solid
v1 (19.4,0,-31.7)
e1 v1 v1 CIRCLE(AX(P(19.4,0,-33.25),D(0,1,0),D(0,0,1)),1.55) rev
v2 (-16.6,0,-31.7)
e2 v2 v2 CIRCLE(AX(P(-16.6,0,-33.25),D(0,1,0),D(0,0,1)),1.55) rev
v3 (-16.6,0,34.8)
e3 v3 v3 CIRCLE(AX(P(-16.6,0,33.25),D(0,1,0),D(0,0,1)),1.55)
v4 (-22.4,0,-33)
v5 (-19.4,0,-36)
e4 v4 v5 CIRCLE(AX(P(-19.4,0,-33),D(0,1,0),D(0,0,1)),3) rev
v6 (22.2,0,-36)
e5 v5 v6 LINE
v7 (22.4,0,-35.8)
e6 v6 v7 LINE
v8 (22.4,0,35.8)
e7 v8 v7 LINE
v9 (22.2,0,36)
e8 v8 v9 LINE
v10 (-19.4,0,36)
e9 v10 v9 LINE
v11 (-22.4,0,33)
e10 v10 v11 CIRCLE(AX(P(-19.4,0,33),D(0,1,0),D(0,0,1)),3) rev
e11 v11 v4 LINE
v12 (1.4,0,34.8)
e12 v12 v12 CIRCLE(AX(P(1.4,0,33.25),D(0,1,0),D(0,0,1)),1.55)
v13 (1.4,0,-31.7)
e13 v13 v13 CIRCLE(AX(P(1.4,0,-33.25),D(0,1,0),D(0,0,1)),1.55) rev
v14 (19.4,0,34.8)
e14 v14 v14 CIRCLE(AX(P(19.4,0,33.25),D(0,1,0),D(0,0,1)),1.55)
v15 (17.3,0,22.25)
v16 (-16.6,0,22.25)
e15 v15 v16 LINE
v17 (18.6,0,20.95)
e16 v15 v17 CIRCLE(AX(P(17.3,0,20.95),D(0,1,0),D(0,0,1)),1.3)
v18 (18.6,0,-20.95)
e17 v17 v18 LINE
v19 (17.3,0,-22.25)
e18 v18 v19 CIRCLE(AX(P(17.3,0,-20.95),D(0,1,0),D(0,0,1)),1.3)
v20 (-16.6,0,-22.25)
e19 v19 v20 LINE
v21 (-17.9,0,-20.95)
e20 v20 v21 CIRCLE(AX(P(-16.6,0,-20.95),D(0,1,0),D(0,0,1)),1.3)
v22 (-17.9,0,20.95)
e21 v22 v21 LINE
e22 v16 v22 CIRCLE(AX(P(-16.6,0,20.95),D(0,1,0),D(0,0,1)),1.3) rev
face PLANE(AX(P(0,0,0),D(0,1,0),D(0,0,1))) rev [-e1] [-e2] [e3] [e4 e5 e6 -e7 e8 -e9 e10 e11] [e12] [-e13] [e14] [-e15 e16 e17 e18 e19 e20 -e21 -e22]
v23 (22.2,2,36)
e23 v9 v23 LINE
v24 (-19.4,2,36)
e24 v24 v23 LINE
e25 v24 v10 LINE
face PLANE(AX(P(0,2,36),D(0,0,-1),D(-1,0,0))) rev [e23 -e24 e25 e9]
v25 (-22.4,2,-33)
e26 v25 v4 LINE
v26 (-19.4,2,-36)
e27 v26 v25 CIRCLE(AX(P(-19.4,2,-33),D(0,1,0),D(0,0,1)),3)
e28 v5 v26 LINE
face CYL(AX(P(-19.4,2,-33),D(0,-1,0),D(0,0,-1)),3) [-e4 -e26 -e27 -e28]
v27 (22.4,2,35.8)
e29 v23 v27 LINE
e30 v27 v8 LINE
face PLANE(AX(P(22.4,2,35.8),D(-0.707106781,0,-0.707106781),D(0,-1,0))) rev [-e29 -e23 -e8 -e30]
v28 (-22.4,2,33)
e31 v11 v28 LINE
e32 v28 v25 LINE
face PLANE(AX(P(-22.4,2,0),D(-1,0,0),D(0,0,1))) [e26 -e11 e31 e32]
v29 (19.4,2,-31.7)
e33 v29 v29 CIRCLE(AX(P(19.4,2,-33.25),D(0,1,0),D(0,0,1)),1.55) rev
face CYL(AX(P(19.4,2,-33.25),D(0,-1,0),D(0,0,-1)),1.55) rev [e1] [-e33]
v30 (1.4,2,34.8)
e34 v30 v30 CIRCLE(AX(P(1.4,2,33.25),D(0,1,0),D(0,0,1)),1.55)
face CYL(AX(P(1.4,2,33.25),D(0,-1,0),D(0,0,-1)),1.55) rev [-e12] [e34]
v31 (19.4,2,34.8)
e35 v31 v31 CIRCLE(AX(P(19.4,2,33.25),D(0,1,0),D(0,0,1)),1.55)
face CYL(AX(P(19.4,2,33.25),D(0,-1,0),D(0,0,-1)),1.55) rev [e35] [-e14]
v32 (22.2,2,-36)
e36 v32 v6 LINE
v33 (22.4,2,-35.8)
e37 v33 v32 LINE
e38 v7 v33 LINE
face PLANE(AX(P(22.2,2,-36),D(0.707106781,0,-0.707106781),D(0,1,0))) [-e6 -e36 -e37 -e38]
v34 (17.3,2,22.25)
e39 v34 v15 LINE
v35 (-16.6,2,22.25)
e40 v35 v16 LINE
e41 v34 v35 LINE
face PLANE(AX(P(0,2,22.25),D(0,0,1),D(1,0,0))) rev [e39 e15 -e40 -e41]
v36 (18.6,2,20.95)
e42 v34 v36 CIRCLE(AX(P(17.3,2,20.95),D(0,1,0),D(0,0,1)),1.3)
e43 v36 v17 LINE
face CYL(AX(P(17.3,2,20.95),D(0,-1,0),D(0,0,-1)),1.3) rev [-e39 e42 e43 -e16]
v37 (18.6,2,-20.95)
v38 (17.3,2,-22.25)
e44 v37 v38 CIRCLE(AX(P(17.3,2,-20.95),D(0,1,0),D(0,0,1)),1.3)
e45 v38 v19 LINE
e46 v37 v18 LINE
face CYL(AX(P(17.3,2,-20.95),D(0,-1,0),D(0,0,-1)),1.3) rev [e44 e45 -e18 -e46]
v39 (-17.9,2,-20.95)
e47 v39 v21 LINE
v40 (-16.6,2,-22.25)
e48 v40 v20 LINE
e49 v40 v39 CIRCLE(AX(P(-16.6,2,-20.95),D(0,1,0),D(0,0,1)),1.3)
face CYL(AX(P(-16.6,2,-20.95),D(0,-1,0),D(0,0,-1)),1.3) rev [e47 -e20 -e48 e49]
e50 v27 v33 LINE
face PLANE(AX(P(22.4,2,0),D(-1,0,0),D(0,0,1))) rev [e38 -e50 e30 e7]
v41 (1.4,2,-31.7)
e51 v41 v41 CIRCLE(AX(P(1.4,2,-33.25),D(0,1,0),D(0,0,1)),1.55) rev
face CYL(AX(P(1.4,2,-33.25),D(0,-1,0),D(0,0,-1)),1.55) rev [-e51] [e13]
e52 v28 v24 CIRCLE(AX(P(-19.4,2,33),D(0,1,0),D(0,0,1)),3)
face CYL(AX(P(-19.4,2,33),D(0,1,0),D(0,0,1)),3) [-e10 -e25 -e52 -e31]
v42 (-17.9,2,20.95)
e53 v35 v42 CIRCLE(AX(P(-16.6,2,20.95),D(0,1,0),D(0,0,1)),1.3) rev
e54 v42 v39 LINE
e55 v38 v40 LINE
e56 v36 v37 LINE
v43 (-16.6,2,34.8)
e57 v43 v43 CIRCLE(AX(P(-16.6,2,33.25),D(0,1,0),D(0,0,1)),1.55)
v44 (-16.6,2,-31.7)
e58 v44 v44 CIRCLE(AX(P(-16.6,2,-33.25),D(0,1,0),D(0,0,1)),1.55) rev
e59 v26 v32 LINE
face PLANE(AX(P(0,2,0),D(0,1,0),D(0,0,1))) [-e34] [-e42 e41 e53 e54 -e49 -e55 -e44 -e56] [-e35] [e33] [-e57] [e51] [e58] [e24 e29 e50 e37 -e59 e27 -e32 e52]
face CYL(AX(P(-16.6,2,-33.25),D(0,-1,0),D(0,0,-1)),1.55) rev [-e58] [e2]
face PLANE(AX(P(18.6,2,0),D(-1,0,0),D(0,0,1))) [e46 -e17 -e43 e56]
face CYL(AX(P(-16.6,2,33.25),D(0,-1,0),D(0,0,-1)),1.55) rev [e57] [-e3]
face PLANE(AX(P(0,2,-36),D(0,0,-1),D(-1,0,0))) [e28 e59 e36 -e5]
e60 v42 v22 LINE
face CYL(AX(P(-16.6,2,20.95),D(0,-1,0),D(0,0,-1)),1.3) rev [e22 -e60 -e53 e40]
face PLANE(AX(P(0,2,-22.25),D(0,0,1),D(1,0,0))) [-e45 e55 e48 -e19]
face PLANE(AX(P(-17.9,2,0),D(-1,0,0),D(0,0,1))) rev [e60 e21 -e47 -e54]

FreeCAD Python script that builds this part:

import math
import FreeCAD as App
import Part
import Sketcher
from FreeCAD import Vector


def edges_at(feature, points):
    """Names of the edges that pass closest to the given points."""
    edges = feature.Shape.Edges
    near = lambda p: min(range(len(edges)), key=lambda i: edges[i].distToShape(Part.Vertex(*p))[0])
    return sorted({f"Edge{near(p) + 1}" for p in points})


def add_polygon(sketch, points):
    """Adds a closed chain of lines whose ends are joined by coincident constraints."""
    first, n = sketch.GeometryCount, len(points)
    for a, b in zip(points, points[1:] + points[:1]):
        sketch.addGeometry(Part.LineSegment(App.Vector(*a, 0), App.Vector(*b, 0)), False)
    for i in range(n):
        sketch.addConstraint(Sketcher.Constraint("Coincident", first + i, 2, first + (i + 1) % n, 1))

doc = App.newDocument("Part")
params = doc.addObject("Spreadsheet::Sheet", "Params")
for row, (alias, value) in enumerate([
    ("sketch1_diameter", "3.1 mm"),
    ("sketch1_radius", "1.3 mm"),
    ("sketch1_height", "72 mm"),
    ("sketch1_width", "44.8 mm"),
    ("sketch1_width2", "33.9 mm"),
    ("pad1_length", "2 mm"),
    ("chamfer_size", "0.2 mm"),
    ("fillet_radius", "3 mm"),
], start=1):
    params.set(f"A{row}", alias)
    params.set(f"B{row}", "=" + value)
    params.setAlias(f"B{row}", alias)

body = doc.addObject("PartDesign::Body", "Body")

sketch1 = doc.addObject("Sketcher::SketchObject", "Sketch")
body.addObject(sketch1)
sketch1.AttachmentSupport = (doc.XZ_Plane, [""])
sketch1.MapMode = "FlatFace"
add_polygon(sketch1, [(-22.4, -36), (-22.4, 36), (22.4, 36), (22.4, -36)])
sketch1.addGeometry(Part.Circle(Vector(-16.6, 33.2, 0), Vector(0, 0, 1), 1.6), False)
sketch1.addGeometry(Part.Circle(Vector(1.4, 33.2, 0), Vector(0, 0, 1), 1.6), False)
sketch1.addGeometry(Part.Circle(Vector(19.4, 33.2, 0), Vector(0, 0, 1), 1.6), False)
sketch1.addGeometry(Part.ArcOfCircle(Part.Circle(Vector(17.3, 21, 0), Vector(0, 0, 1), 1.3), math.radians(0), math.radians(90)), False)
sketch1.addGeometry(Part.LineSegment(Vector(17.3, 22.2, 0), Vector(-16.6, 22.2, 0)), False)
sketch1.addGeometry(Part.ArcOfCircle(Part.Circle(Vector(-16.6, 21, 0), Vector(0, 0, 1), 1.3), math.radians(90), math.radians(180)), False)
sketch1.addGeometry(Part.LineSegment(Vector(-17.9, 20.9, 0), Vector(-17.9, -20.9, 0)), False)
sketch1.addGeometry(Part.ArcOfCircle(Part.Circle(Vector(-16.6, -21, 0), Vector(0, 0, 1), 1.3), math.radians(180), math.radians(270)), False)
sketch1.addGeometry(Part.LineSegment(Vector(-16.6, -22.2, 0), Vector(17.3, -22.2, 0)), False)
sketch1.addGeometry(Part.ArcOfCircle(Part.Circle(Vector(17.3, -21, 0), Vector(0, 0, 1), 1.3), math.radians(-90), math.radians(0)), False)
sketch1.addGeometry(Part.LineSegment(Vector(18.6, -20.9, 0), Vector(18.6, 20.9, 0)), False)
sketch1.addGeometry(Part.Circle(Vector(-16.6, -33.2, 0), Vector(0, 0, 1), 1.6), False)
sketch1.addGeometry(Part.Circle(Vector(1.4, -33.2, 0), Vector(0, 0, 1), 1.6), False)
sketch1.addGeometry(Part.Circle(Vector(19.4, -33.2, 0), Vector(0, 0, 1), 1.6), False)
sketch1.addConstraint(Sketcher.Constraint("Tangent", 7, 2, 8, 1))
sketch1.addConstraint(Sketcher.Constraint("Tangent", 8, 2, 9, 1))
sketch1.addConstraint(Sketcher.Constraint("Tangent", 9, 2, 10, 1))
sketch1.addConstraint(Sketcher.Constraint("Tangent", 10, 2, 11, 1))
sketch1.addConstraint(Sketcher.Constraint("Tangent", 11, 2, 12, 1))
sketch1.addConstraint(Sketcher.Constraint("Tangent", 12, 2, 13, 1))
sketch1.addConstraint(Sketcher.Constraint("Tangent", 13, 2, 14, 1))
sketch1.addConstraint(Sketcher.Constraint("Tangent", 14, 2, 7, 1))
sketch1.addConstraint(Sketcher.Constraint("Vertical", 0))
sketch1.addConstraint(Sketcher.Constraint("Horizontal", 1))
sketch1.addConstraint(Sketcher.Constraint("Vertical", 2))
sketch1.addConstraint(Sketcher.Constraint("Horizontal", 3))
sketch1.addConstraint(Sketcher.Constraint("Horizontal", 8))
sketch1.addConstraint(Sketcher.Constraint("Vertical", 10))
sketch1.addConstraint(Sketcher.Constraint("Horizontal", 12))
sketch1.addConstraint(Sketcher.Constraint("Vertical", 14))
sketch1.addConstraint(Sketcher.Constraint("Equal", 4, 5))
sketch1.addConstraint(Sketcher.Constraint("Equal", 5, 6))
sketch1.addConstraint(Sketcher.Constraint("Equal", 7, 9))
sketch1.addConstraint(Sketcher.Constraint("Equal", 9, 11))
sketch1.addConstraint(Sketcher.Constraint("Equal", 11, 13))
sketch1.addConstraint(Sketcher.Constraint("Equal", 6, 15))
sketch1.addConstraint(Sketcher.Constraint("Equal", 15, 16))
sketch1.addConstraint(Sketcher.Constraint("Equal", 16, 17))
sketch1.addConstraint(Sketcher.Constraint("Symmetric", 0, 2, 2, 2, -1, 1))
sketch1.addConstraint(Sketcher.Constraint("Symmetric", 4, 3, 15, 3, -1))
sketch1.addConstraint(Sketcher.Constraint("Symmetric", 5, 3, 16, 3, -1))
sketch1.addConstraint(Sketcher.Constraint("Symmetric", 6, 3, 17, 3, -1))
sketch1.addConstraint(Sketcher.Constraint("Horizontal", 4, 3, 5, 3))
sketch1.addConstraint(Sketcher.Constraint("Horizontal", 5, 3, 6, 3))
sketch1.addConstraint(Sketcher.Constraint("Vertical", 4, 3, 9, 3))
sketch1.addConstraint(Sketcher.Constraint("Diameter", 4, 3.1))
sketch1.addConstraint(Sketcher.Constraint("Radius", 7, 1.3))
sketch1.addConstraint(Sketcher.Constraint("DistanceY", 0, 1, 0, 2, 72.0))
sketch1.addConstraint(Sketcher.Constraint("DistanceX", 1, 1, 1, 2, 44.8))
sketch1.addConstraint(Sketcher.Constraint("DistanceX", 8, 2, 8, 1, 33.9))
sketch1.addConstraint(Sketcher.Constraint("DistanceY", 10, 2, 10, 1, 41.9))
sketch1.addConstraint(Sketcher.Constraint("DistanceX", 4, 3, 5, 3, 18.0))
sketch1.addConstraint(Sketcher.Constraint("DistanceX", 5, 3, 6, 3, 18.0))
sketch1.addConstraint(Sketcher.Constraint("DistanceX", 6, 3, 1, 2, 3.0))
sketch1.addConstraint(Sketcher.Constraint("DistanceY", 7, 2, 6, 3, 11.0))
sketch1.addConstraint(Sketcher.Constraint("DistanceY", 15, 3, 11, 2, 11.0))
sketch1.setExpression("Constraints[35]", "Params.sketch1_diameter")
sketch1.setExpression("Constraints[36]", "Params.sketch1_radius")
sketch1.setExpression("Constraints[37]", "Params.sketch1_height")
sketch1.setExpression("Constraints[38]", "Params.sketch1_width")
sketch1.setExpression("Constraints[39]", "Params.sketch1_width2")
pad1 = doc.addObject("PartDesign::Pad", "Pad")
body.addObject(pad1)
pad1.Profile = sketch1
pad1.setExpression("Length", "Params.pad1_length")
pad1.Reversed = True
doc.recompute()

chamfer = doc.addObject("PartDesign::Chamfer", "Chamfer")
body.addObject(chamfer)
chamfer.Base = (pad1, edges_at(pad1, [(22.4, 1, -36), (22.4, 1, 36)]))
chamfer.setExpression("Size", "Params.chamfer_size")
doc.recompute()

fillet = doc.addObject("PartDesign::Fillet", "Fillet")
body.addObject(fillet)
fillet.Base = (chamfer, edges_at(chamfer, [(-22.4, 1, 36), (-22.4, 1, -36)]))
fillet.setExpression("Radius", "Params.fillet_radius")

doc.recompute()
